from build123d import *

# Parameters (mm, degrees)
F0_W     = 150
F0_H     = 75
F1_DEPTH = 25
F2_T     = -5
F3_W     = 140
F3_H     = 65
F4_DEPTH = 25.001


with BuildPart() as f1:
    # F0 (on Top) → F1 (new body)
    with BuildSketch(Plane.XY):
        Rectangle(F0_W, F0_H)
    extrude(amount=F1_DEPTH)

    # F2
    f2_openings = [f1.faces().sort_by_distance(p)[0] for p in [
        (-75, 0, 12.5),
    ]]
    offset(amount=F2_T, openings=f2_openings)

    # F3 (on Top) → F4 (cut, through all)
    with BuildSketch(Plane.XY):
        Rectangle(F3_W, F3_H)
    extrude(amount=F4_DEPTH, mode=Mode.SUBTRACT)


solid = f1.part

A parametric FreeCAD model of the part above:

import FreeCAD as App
import Part
import Sketcher

V = App.Vector


def faces_at(feature, points):
    """Names of the faces that lie closest to the given points."""
    faces = feature.Shape.Faces
    near = lambda p: min(range(len(faces)), key=lambda i: faces[i].distToShape(Part.Vertex(*p))[0])
    return sorted({f"Face{near(p) + 1}" for p in points})


def add_polygon(sketch, points):
    """Adds a closed chain of lines whose ends are joined by coincident constraints."""
    first, n = sketch.GeometryCount, len(points)
    for a, b in zip(points, points[1:] + points[:1]):
        sketch.addGeometry(Part.LineSegment(App.Vector(*a, 0), App.Vector(*b, 0)), False)
    for i in range(n):
        sketch.addConstraint(Sketcher.Constraint("Coincident", first + i, 2, first + (i + 1) % n, 1))

doc = App.newDocument("Part")
body = doc.addObject("PartDesign::Body", "Body")

# Sketch on XY plane
sketch1 = body.newObject("Sketcher::SketchObject", "Sketch")
sketch1.AttachmentSupport = (doc.getObject("XY_Plane"), [""])
sketch1.MapMode = "FlatFace"
add_polygon(sketch1, [(-75, 38), (-75, -38), (75, -38), (75, 38)])  # lines 0-3
sketch1.addConstraint([
    Sketcher.Constraint("Vertical", 0),
    Sketcher.Constraint("Horizontal", 1),
    Sketcher.Constraint("Vertical", 2),
    Sketcher.Constraint("Horizontal", 3),
    Sketcher.Constraint("Symmetric", 0, 2, 2, 2, -1, 1),
    Sketcher.Constraint("DistanceX", 1, 1, 1, 2, 150.0),
    Sketcher.Constraint("DistanceY", 0, 2, 0, 1, 75.0),
])
pad1 = body.newObject("PartDesign::Pad", "Pad")
pad1.Profile = sketch1
pad1.Length = 25
doc.recompute()

thickness = body.newObject("PartDesign::Thickness", "Thickness")
thickness.Base = (pad1, faces_at(pad1, [(-75, 0, 12.5)]))
thickness.Value = 5
thickness.Reversed = True
thickness.Join = "Arc"

# Sketch on XY plane
sketch2 = body.newObject("Sketcher::SketchObject", "Sketch001")
sketch2.AttachmentSupport = (doc.getObject("XY_Plane"), [""])
sketch2.MapMode = "FlatFace"
add_polygon(sketch2, [(-70, 32), (-70, -32), (70, -32), (70, 32)])  # lines 0-3
sketch2.addConstraint([
    Sketcher.Constraint("Vertical", 0),
    Sketcher.Constraint("Horizontal", 1),
    Sketcher.Constraint("Vertical", 2),
    Sketcher.Constraint("Horizontal", 3),
    Sketcher.Constraint("Symmetric", 0, 2, 2, 2, -1, 1),
    Sketcher.Constraint("DistanceX", 1, 1, 1, 2, 140.0),
    Sketcher.Constraint("DistanceY", 0, 2, 0, 1, 65.0),
])
pocket1 = body.newObject("PartDesign::Pocket", "Pocket")
pocket1.Profile = sketch2
pocket1.Type = "ThroughAll"
pocket1.Reversed = True

doc.recompute()
